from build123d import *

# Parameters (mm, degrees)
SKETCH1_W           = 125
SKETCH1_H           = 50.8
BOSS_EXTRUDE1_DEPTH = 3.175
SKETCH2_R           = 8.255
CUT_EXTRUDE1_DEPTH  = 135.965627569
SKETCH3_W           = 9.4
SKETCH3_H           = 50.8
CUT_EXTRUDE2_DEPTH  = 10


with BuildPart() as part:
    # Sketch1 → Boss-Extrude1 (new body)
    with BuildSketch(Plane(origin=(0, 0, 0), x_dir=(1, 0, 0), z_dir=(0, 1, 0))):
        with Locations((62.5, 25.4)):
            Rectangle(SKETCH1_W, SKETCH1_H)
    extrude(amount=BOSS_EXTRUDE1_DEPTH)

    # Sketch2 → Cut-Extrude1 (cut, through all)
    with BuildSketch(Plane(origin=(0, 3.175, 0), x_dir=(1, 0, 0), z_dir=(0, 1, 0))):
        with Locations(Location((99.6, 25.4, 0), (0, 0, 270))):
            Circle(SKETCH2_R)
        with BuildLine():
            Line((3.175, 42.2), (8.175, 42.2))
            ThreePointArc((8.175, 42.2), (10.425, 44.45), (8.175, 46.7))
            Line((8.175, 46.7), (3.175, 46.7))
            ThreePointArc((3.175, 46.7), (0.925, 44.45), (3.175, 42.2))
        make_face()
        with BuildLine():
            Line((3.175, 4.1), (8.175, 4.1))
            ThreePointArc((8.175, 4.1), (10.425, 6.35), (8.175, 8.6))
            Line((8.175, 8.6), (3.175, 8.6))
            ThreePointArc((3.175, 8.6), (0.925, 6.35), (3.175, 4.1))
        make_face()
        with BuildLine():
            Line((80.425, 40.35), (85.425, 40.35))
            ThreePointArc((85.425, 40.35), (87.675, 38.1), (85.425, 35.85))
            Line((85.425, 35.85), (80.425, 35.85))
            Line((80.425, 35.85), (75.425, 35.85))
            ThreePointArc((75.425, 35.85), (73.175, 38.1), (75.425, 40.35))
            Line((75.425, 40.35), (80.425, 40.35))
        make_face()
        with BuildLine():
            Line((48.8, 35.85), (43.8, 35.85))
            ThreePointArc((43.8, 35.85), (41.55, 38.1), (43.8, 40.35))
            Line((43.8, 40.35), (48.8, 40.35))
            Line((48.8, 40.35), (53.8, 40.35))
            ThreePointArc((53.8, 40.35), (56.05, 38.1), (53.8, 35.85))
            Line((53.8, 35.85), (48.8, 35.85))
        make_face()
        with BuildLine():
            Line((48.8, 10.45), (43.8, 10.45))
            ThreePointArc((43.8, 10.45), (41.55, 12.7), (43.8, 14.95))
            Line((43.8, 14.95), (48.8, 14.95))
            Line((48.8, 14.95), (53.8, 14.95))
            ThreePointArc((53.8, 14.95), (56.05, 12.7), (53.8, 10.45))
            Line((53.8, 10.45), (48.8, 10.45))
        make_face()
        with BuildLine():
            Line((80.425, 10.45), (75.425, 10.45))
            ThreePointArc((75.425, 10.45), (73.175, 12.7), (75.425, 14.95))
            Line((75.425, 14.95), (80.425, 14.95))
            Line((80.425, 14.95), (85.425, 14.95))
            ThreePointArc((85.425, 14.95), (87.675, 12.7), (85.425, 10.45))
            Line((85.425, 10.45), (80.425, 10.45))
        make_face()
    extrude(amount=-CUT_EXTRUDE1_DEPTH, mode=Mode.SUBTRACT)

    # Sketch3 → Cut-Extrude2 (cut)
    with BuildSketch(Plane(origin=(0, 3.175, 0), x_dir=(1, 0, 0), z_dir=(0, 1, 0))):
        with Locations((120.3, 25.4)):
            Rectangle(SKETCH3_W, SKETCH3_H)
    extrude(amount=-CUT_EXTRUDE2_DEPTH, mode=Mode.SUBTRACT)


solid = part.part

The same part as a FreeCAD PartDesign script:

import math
import FreeCAD as App
import Part
import Sketcher
from FreeCAD import Vector
Q = App.Units.Quantity

doc = App.newDocument("Part")
body = doc.addObject("PartDesign::Body", "Body")

# Sketch on XZ plane
sketch1 = body.newObject("Sketcher::SketchObject", "Sketch")
sketch1.AttachmentSupport = (doc.getObject("XZ_Plane"), [""])
sketch1.MapMode = "FlatFace"
sketch1.addGeometry([
    Part.LineSegment(Vector(0, -51, 0), Vector(0, 0, 0)),
    Part.LineSegment(Vector(0, 0, 0), Vector(125, 0, 0)),
    Part.LineSegment(Vector(125, 0, 0), Vector(125, -51, 0)),
    Part.LineSegment(Vector(125, -51, 0), Vector(0, -51, 0)),
], False)
sketch1.addConstraint([
    Sketcher.Constraint("Coincident", 0, 2, 1, 1),
    Sketcher.Constraint("Coincident", 1, 2, 2, 1),
    Sketcher.Constraint("Coincident", 2, 2, 3, 1),
    Sketcher.Constraint("Coincident", 3, 2, 0, 1),
    Sketcher.Constraint("Vertical", 0),
    Sketcher.Constraint("Horizontal", 1),
    Sketcher.Constraint("Vertical", 2),
    Sketcher.Constraint("Horizontal", 3),
    Sketcher.Constraint("Coincident", 0, 2, -1, 1),
    Sketcher.Constraint("DistanceX", 1, 1, 1, 2, Q("125 mm")),
    Sketcher.Constraint("DistanceY", 0, 1, 0, 2, Q("50.8 mm")),
])
pad1 = body.newObject("PartDesign::Pad", "Pad")
pad1.Profile = sketch1
pad1.Length = 3.175
pad1.Reversed = True

# Sketch on XZ plane
sketch2 = body.newObject("Sketcher::SketchObject", "Sketch001")
sketch2.AttachmentSupport = (doc.getObject("XZ_Plane"), [""])
sketch2.MapMode = "FlatFace"
sketch2.AttachmentOffset = App.Placement(Vector(0, 0, -3.175), App.Rotation())
sketch2.addGeometry([
    Part.Circle(Vector(99.6, -25.4, 0), Vector(0, 0, 1), 8.3),  # 0
    Part.LineSegment(Vector(3.2, -42.2, 0), Vector(8.2, -42.2, 0)),  # 1
    Part.ArcOfCircle(Part.Circle(Vector(8.2, -44.5, 0), Vector(0, 0, 1), 2.2), math.radians(-90), math.radians(90)),  # 2
    Part.LineSegment(Vector(8.2, -46.7, 0), Vector(3.2, -46.7, 0)),  # 3
    Part.ArcOfCircle(Part.Circle(Vector(3.2, -44.5, 0), Vector(0, 0, 1), 2.2), math.radians(90), math.radians(270)),  # 4
    Part.LineSegment(Vector(3.2, -4.1, 0), Vector(8.2, -4.1, 0)),  # 5
    Part.ArcOfCircle(Part.Circle(Vector(8.2, -6.3, 0), Vector(0, 0, 1), 2.2), math.radians(-90), math.radians(90)),  # 6
    Part.LineSegment(Vector(8.2, -8.6, 0), Vector(3.2, -8.6, 0)),  # 7
    Part.ArcOfCircle(Part.Circle(Vector(3.2, -6.3, 0), Vector(0, 0, 1), 2.2), math.radians(90), math.radians(270)),  # 8
    Part.ArcOfCircle(Part.Circle(Vector(85.4, -38.1, 0), Vector(0, 0, 1), 2.2), math.radians(-90), math.radians(90)),  # 9
    Part.LineSegment(Vector(85.4, -40.4, 0), Vector(75.4, -40.4, 0)),  # 10
    Part.ArcOfCircle(Part.Circle(Vector(75.4, -38.1, 0), Vector(0, 0, 1), 2.2), math.radians(90), math.radians(270)),  # 11
    Part.LineSegment(Vector(75.4, -35.9, 0), Vector(85.4, -35.9, 0)),  # 12
    Part.ArcOfCircle(Part.Circle(Vector(43.8, -38.1, 0), Vector(0, 0, 1), 2.2), math.radians(90), math.radians(270)),  # 13
    Part.LineSegment(Vector(43.8, -35.9, 0), Vector(53.8, -35.9, 0)),  # 14
    Part.ArcOfCircle(Part.Circle(Vector(53.8, -38.1, 0), Vector(0, 0, 1), 2.2), math.radians(-90), math.radians(90)),  # 15
    Part.LineSegment(Vector(53.8, -40.4, 0), Vector(43.8, -40.4, 0)),  # 16
    Part.ArcOfCircle(Part.Circle(Vector(43.8, -12.7, 0), Vector(0, 0, 1), 2.2), math.radians(90), math.radians(270)),  # 17
    Part.LineSegment(Vector(43.8, -10.4, 0), Vector(53.8, -10.4, 0)),  # 18
    Part.ArcOfCircle(Part.Circle(Vector(53.8, -12.7, 0), Vector(0, 0, 1), 2.2), math.radians(-90), math.radians(90)),  # 19
    Part.LineSegment(Vector(53.8, -14.9, 0), Vector(43.8, -14.9, 0)),  # 20
    Part.ArcOfCircle(Part.Circle(Vector(75.4, -12.7, 0), Vector(0, 0, 1), 2.2), math.radians(90), math.radians(270)),  # 21
    Part.LineSegment(Vector(75.4, -10.4, 0), Vector(85.4, -10.4, 0)),  # 22
    Part.ArcOfCircle(Part.Circle(Vector(85.4, -12.7, 0), Vector(0, 0, 1), 2.2), math.radians(-90), math.radians(90)),  # 23
    Part.LineSegment(Vector(85.4, -14.9, 0), Vector(75.4, -14.9, 0)),  # 24
], False)
sketch2.addConstraint([
    Sketcher.Constraint("Tangent", 1, 2, 2, 2),
    Sketcher.Constraint("Tangent", 2, 1, 3, 1),
    Sketcher.Constraint("Tangent", 3, 2, 4, 2),
    Sketcher.Constraint("Tangent", 4, 1, 1, 1),
    Sketcher.Constraint("Tangent", 5, 2, 6, 2),
    Sketcher.Constraint("Tangent", 6, 1, 7, 1),
    Sketcher.Constraint("Tangent", 7, 2, 8, 2),
    Sketcher.Constraint("Tangent", 8, 1, 5, 1),
    Sketcher.Constraint("Tangent", 9, 1, 10, 1),
    Sketcher.Constraint("Tangent", 10, 2, 11, 2),
    Sketcher.Constraint("Tangent", 11, 1, 12, 1),
    Sketcher.Constraint("Tangent", 12, 2, 9, 2),
    Sketcher.Constraint("Tangent", 13, 1, 14, 1),
    Sketcher.Constraint("Tangent", 14, 2, 15, 2),
    Sketcher.Constraint("Tangent", 15, 1, 16, 1),
    Sketcher.Constraint("Tangent", 16, 2, 13, 2),
    Sketcher.Constraint("Tangent", 17, 1, 18, 1),
    Sketcher.Constraint("Tangent", 18, 2, 19, 2),
    Sketcher.Constraint("Tangent", 19, 1, 20, 1),
    Sketcher.Constraint("Tangent", 20, 2, 17, 2),
    Sketcher.Constraint("Tangent", 21, 1, 22, 1),
    Sketcher.Constraint("Tangent", 22, 2, 23, 2),
    Sketcher.Constraint("Tangent", 23, 1, 24, 1),
    Sketcher.Constraint("Tangent", 24, 2, 21, 2),
    Sketcher.Constraint("Horizontal", 1),
    Sketcher.Constraint("Horizontal", 3),
    Sketcher.Constraint("Horizontal", 5),
    Sketcher.Constraint("Horizontal", 7),
    Sketcher.Constraint("Horizontal", 10),
    Sketcher.Constraint("Horizontal", 12),
    Sketcher.Constraint("Horizontal", 14),
    Sketcher.Constraint("Horizontal", 16),
    Sketcher.Constraint("Horizontal", 18),
    Sketcher.Constraint("Horizontal", 20),
    Sketcher.Constraint("Horizontal", 22),
    Sketcher.Constraint("Horizontal", 24),
    Sketcher.Constraint("Equal", 4, 6),
    Sketcher.Constraint("Equal", 8, 9),
    Sketcher.Constraint("Equal", 11, 13),
    Sketcher.Constraint("Equal", 15, 17),
    Sketcher.Constraint("Equal", 19, 21),
    Sketcher.Constraint("Horizontal", 11, 3, 13, 3),
    Sketcher.Constraint("Horizontal", 19, 3, 21, 3),
    Sketcher.Constraint("Vertical", 2, 3, 6, 3),
    Sketcher.Constraint("Vertical", 4, 3, 8, 3),
    Sketcher.Constraint("Vertical", 13, 3, 17, 3),
    Sketcher.Constraint("Vertical", 15, 3, 19, 3),
    Sketcher.Constraint("Vertical", 11, 3, 21, 3),
    Sketcher.Constraint("Vertical", 9, 3, 23, 3),
    Sketcher.Constraint("Equal", 12, 14),
    Sketcher.Constraint("Diameter", 0, Q("16.51 mm")),
    Sketcher.Constraint("DistanceX", 1, 1, 1, 2, Q("5 mm")),
    Sketcher.Constraint("DistanceX", 10, 2, 10, 1, Q("10 mm")),
    Sketcher.Constraint("Radius", 2, Q("2.25 mm")),
    Sketcher.Constraint("DistanceX", -1, 1, 0, 3, Q("99.6 mm")),
    Sketcher.Constraint("DistanceY", 0, 3, -1, 1, Q("25.4 mm")),
    Sketcher.Constraint("DistanceY", 9, 3, -1, 1, Q("38.1 mm")),
    Sketcher.Constraint("DistanceX", -1, 1, 13, 3, Q("43.8 mm")),
    Sketcher.Constraint("DistanceY", 17, 3, -1, 1, Q("12.7 mm")),
    Sketcher.Constraint("DistanceY", 1, 2, -1, 1, Q("42.2 mm")),
    Sketcher.Constraint("DistanceY", 5, 2, -1, 1, Q("4.1 mm")),
    Sketcher.Constraint("DistanceX", 2, 3, 9, 3, Q("77.25 mm")),
    Sketcher.Constraint("DistanceX", -1, 1, 2, 3, Q("8.175 mm")),
])
pocket1 = body.newObject("PartDesign::Pocket", "Pocket")
pocket1.Profile = sketch2
pocket1.Type = "ThroughAll"
pocket1.Reversed = True

# Sketch on XZ plane
sketch3 = body.newObject("Sketcher::SketchObject", "Sketch002")
sketch3.AttachmentSupport = (doc.getObject("XZ_Plane"), [""])
sketch3.MapMode = "FlatFace"
sketch3.AttachmentOffset = App.Placement(Vector(0, 0, -3.175), App.Rotation())
sketch3.addGeometry([
    Part.LineSegment(Vector(116, -51, 0), Vector(116, 0, 0)),
    Part.LineSegment(Vector(116, 0, 0), Vector(125, 0, 0)),
    Part.LineSegment(Vector(125, 0, 0), Vector(125, -51, 0)),
    Part.LineSegment(Vector(125, -51, 0), Vector(116, -51, 0)),
], False)
sketch3.addConstraint([
    Sketcher.Constraint("Coincident", 0, 2, 1, 1),
    Sketcher.Constraint("Coincident", 1, 2, 2, 1),
    Sketcher.Constraint("Coincident", 2, 2, 3, 1),
    Sketcher.Constraint("Coincident", 3, 2, 0, 1),
    Sketcher.Constraint("Vertical", 0),
    Sketcher.Constraint("Horizontal", 1),
    Sketcher.Constraint("Vertical", 2),
    Sketcher.Constraint("Horizontal", 3),
    Sketcher.Constraint("PointOnObject", 0, 2, -1),
    Sketcher.Constraint("DistanceX", 1, 1, 1, 2, Q("9.4 mm")),
    Sketcher.Constraint("DistanceY", 0, 1, 0, 2, Q("50.8 mm")),
    Sketcher.Constraint("DistanceX", -1, 1, 1, 2, Q("125 mm")),
])
pocket2 = body.newObject("PartDesign::Pocket", "Pocket001")
pocket2.Profile = sketch3
pocket2.Length = 10
pocket2.Reversed = True

doc.recompute()
